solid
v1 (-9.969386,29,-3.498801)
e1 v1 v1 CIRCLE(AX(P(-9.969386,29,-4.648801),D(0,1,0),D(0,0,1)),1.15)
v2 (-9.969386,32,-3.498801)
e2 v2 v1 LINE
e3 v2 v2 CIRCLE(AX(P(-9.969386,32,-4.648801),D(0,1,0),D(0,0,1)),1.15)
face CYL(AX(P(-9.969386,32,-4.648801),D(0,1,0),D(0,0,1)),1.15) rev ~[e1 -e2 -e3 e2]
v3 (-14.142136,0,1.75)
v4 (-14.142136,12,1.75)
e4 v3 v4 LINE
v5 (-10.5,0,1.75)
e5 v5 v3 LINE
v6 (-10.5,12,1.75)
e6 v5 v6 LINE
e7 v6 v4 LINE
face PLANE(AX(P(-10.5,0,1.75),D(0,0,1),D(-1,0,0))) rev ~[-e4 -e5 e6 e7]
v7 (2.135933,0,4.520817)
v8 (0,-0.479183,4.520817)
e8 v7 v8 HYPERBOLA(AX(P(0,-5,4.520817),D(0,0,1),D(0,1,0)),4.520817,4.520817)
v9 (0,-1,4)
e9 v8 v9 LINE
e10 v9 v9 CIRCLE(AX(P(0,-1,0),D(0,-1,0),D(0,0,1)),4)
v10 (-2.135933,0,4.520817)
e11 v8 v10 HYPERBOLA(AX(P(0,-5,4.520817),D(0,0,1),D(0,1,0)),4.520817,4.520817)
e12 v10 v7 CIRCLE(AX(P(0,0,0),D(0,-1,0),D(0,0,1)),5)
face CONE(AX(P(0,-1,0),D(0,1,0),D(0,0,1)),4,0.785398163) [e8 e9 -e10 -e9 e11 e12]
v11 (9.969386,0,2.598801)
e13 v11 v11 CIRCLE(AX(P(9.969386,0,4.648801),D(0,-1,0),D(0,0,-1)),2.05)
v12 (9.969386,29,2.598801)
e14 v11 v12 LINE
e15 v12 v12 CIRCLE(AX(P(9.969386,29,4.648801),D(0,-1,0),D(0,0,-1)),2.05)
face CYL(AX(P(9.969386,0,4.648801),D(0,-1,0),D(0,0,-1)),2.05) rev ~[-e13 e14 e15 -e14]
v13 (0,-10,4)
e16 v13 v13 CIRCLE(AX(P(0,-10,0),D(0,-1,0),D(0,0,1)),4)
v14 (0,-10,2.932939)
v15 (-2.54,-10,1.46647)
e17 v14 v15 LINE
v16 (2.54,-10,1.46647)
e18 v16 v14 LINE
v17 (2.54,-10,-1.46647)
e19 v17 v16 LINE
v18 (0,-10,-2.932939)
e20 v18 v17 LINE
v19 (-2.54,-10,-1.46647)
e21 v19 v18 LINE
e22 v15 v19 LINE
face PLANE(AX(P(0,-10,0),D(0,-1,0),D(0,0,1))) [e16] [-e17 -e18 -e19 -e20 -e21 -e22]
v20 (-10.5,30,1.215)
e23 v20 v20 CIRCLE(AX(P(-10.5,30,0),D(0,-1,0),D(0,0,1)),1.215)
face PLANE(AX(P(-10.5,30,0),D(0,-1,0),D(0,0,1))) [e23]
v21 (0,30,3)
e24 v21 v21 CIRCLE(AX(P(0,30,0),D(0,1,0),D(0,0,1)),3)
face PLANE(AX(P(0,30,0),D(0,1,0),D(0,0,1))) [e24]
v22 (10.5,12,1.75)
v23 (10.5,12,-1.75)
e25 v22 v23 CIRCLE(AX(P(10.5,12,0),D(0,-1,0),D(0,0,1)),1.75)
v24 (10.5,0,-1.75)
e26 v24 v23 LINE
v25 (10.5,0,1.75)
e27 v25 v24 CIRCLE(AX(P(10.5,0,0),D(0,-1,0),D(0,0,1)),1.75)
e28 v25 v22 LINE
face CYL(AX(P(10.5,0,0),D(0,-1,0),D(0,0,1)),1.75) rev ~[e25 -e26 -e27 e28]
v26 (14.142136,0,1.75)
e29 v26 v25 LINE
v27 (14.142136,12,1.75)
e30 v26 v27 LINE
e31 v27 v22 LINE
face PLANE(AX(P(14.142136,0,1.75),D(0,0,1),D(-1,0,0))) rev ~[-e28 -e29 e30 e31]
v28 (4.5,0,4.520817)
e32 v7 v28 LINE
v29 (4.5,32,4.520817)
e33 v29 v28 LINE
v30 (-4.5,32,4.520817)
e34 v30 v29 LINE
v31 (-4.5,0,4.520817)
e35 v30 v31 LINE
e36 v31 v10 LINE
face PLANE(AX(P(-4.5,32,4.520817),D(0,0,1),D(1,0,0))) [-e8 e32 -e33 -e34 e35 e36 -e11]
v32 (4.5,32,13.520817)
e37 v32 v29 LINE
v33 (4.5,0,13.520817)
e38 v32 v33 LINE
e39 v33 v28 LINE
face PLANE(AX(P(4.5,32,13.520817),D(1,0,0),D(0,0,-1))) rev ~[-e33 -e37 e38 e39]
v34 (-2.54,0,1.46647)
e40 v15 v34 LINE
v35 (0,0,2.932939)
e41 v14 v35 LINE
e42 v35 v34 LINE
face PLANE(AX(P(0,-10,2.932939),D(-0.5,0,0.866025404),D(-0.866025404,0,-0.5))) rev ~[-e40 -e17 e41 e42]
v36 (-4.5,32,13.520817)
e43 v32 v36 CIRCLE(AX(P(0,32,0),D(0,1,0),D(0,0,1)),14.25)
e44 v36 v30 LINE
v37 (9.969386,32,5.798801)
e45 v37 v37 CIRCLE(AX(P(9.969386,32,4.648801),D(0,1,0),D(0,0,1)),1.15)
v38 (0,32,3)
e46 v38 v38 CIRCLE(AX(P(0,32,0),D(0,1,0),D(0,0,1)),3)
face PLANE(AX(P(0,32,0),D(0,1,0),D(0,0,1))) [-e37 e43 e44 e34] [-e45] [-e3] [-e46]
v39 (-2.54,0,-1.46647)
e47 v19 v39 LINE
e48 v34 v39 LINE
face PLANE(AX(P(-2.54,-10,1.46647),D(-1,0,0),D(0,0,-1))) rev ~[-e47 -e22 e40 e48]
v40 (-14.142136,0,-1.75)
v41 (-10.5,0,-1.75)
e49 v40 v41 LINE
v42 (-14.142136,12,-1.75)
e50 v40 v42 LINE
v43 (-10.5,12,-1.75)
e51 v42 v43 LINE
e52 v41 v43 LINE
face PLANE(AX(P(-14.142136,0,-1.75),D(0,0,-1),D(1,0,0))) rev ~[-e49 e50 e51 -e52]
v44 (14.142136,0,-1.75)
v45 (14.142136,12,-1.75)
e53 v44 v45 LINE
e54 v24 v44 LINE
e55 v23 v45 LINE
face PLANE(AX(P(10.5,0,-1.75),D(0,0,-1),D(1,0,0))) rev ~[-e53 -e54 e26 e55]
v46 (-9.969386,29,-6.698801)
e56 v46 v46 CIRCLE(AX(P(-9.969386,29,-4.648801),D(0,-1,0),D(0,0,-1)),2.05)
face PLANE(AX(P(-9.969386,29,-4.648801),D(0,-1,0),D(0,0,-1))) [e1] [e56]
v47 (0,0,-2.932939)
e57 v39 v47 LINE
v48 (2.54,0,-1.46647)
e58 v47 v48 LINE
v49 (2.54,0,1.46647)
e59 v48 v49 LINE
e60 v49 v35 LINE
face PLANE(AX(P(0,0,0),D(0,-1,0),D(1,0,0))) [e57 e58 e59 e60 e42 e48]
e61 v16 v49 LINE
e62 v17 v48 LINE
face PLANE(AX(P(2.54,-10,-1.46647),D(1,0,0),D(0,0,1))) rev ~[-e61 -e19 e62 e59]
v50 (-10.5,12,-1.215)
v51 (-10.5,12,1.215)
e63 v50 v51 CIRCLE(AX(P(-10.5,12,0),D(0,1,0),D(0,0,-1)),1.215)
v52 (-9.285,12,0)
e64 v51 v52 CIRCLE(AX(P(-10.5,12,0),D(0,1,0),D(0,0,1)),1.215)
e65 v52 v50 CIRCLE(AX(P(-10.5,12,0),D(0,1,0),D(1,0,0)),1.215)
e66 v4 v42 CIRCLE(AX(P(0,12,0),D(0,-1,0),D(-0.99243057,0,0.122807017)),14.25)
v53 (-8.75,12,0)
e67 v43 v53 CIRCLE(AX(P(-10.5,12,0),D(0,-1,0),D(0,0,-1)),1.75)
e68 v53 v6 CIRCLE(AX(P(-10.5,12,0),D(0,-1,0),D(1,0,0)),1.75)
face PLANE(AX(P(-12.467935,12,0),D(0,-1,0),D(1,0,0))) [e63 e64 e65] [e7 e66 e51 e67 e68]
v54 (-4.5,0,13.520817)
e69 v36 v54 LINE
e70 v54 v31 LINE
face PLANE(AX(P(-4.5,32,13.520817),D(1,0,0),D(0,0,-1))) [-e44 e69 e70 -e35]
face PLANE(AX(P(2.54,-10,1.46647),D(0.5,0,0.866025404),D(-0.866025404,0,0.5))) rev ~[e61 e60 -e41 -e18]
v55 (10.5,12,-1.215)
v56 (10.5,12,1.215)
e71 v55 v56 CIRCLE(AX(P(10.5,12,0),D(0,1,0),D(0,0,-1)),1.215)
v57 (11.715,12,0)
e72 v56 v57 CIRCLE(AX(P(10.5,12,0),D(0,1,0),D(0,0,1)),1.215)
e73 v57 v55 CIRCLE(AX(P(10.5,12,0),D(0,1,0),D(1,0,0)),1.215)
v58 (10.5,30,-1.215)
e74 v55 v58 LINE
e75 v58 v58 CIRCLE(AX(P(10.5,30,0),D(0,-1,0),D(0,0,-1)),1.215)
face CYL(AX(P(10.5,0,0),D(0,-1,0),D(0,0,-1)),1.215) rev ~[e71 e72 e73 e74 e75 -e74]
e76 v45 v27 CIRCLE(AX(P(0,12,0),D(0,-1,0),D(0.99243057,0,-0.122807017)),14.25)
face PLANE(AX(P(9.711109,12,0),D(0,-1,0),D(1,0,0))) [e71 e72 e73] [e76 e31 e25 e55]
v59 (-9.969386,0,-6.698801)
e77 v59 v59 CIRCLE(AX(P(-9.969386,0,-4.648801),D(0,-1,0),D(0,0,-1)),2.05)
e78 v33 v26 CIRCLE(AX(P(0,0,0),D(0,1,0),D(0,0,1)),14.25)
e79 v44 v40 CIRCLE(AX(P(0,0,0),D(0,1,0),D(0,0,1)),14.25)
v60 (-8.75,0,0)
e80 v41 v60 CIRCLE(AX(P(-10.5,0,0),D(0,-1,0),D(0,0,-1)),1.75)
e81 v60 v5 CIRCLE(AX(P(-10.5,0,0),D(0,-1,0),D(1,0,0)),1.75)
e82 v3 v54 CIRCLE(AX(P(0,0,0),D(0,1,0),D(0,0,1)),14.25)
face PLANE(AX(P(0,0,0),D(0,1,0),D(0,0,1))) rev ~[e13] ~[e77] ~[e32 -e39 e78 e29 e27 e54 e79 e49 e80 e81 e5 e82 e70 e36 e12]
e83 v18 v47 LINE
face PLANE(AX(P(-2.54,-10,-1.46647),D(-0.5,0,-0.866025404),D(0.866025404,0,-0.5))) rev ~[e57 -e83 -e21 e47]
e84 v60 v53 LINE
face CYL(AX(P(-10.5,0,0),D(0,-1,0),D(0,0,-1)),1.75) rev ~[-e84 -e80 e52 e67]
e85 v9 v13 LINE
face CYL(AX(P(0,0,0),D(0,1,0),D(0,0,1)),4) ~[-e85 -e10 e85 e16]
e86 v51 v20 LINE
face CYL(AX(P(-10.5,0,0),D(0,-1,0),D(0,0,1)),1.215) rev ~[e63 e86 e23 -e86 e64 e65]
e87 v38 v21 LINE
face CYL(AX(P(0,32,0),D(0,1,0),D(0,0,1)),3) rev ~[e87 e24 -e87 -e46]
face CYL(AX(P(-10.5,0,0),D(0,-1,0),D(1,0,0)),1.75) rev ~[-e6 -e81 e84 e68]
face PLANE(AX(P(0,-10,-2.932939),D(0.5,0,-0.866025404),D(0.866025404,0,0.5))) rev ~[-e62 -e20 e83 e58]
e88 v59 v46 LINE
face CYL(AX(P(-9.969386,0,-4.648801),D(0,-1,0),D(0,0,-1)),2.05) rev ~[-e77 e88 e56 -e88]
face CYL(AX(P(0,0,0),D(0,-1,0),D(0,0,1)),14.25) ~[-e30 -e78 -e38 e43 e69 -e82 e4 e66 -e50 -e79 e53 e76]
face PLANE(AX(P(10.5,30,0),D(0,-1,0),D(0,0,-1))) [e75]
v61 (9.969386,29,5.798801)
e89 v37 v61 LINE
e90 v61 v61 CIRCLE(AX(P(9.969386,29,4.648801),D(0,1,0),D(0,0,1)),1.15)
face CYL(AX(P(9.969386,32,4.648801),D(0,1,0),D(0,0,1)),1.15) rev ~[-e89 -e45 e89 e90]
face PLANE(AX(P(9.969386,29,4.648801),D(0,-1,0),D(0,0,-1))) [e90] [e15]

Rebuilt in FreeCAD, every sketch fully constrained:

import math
import FreeCAD as App
import Part
import Sketcher

V = App.Vector
Q = App.Units.Quantity


def edges_at(feature, points):
    """Names of the edges that pass closest to the given points."""
    edges = feature.Shape.Edges
    near = lambda p: min(range(len(edges)), key=lambda i: edges[i].distToShape(Part.Vertex(*p))[0])
    return sorted({f"Edge{near(p) + 1}" for p in points})


def add_polygon(sketch, points):
    """Adds a closed chain of lines whose ends are joined by coincident constraints."""
    first, n = sketch.GeometryCount, len(points)
    for a, b in zip(points, points[1:] + points[:1]):
        sketch.addGeometry(Part.LineSegment(App.Vector(*a, 0), App.Vector(*b, 0)), False)
    for i in range(n):
        sketch.addConstraint(Sketcher.Constraint("Coincident", first + i, 2, first + (i + 1) % n, 1))

doc = App.newDocument("Part")
body = doc.addObject("PartDesign::Body", "Body")

# Sketch on XZ plane
sketch1 = body.newObject("Sketcher::SketchObject", "Sketch")
sketch1.AttachmentSupport = (doc.getObject("XZ_Plane"), [""])
sketch1.MapMode = "FlatFace"
sketch1.addGeometry(Part.Circle(V(0, 0, 0), V(0, 0, 1), 14.25), False)
sketch1.addConstraint([
    Sketcher.Constraint("Coincident", 0, 3, -1, 1),
    Sketcher.Constraint("Diameter", 0, Q("28.5 mm")),
])
pad1 = body.newObject("PartDesign::Pad", "Pad")
pad1.Profile = sketch1
pad1.Length = 32
pad1.Reversed = True

# Sketch on XZ plane
sketch2 = body.newObject("Sketcher::SketchObject", "Sketch001")
sketch2.AttachmentSupport = (doc.getObject("XZ_Plane"), [""])
sketch2.MapMode = "FlatFace"
sketch2.addGeometry([
    Part.Circle(V(10.5, 0, 0), V(0, 0, 1), 1.215),
    Part.Circle(V(-10.5, 0, 0), V(0, 0, 1), 1.215),
], False)
sketch2.addConstraint([
    Sketcher.Constraint("Equal", 0, 1),
    Sketcher.Constraint("Symmetric", 0, 3, 1, 3, -1, 1),
    Sketcher.Constraint("PointOnObject", 0, 3, -1),
    Sketcher.Constraint("Diameter", 0, Q("2.43 mm")),
    Sketcher.Constraint("DistanceX", 1, 3, 0, 3, Q("21 mm")),
])
pocket1 = body.newObject("PartDesign::Pocket", "Pocket")
pocket1.Profile = sketch2
pocket1.Length = 30

# Sketch on XZ plane
sketch3 = body.newObject("Sketcher::SketchObject", "Sketch002")
sketch3.AttachmentSupport = (doc.getObject("XZ_Plane"), [""])
sketch3.MapMode = "FlatFace"
sketch3.addGeometry(Part.Circle(V(0, 0, 0), V(0, 0, 1), 4), False)
sketch3.addConstraint([
    Sketcher.Constraint("Coincident", 0, 3, -1, 1),
    Sketcher.Constraint("Diameter", 0, Q("8 mm")),
])
pad2 = body.newObject("PartDesign::Pad", "Pad001")
pad2.Profile = sketch3
pad2.Length = 10

# Sketch on XZ plane
sketch4 = body.newObject("Sketcher::SketchObject", "Sketch003")
sketch4.AttachmentSupport = (doc.getObject("XZ_Plane"), [""])
sketch4.MapMode = "FlatFace"
sketch4.AttachmentOffset = App.Placement(V(0, 0, 10), App.Rotation())
add_polygon(sketch4, [(0, -2.932939), (2.54, -1.46647), (2.54, 1.46647), (0, 2.932939), (-2.54, 1.46647), (-2.54, -1.46647)])  # lines 0-5
sketch4.addConstraint([
    Sketcher.Constraint("Vertical", 1),
    Sketcher.Constraint("Vertical", 4),
    Sketcher.Constraint("Symmetric", 0, 2, 3, 2, -1, 1),
    Sketcher.Constraint("Symmetric", 2, 2, 5, 2, -1, 1),
    Sketcher.Constraint("PointOnObject", 2, 2, -2),
    Sketcher.Constraint("Parallel", 2, 5),
    Sketcher.Constraint("Horizontal", 1, 2, 3, 2),
    Sketcher.Constraint("Angle", 0, Q("30 deg")),
    Sketcher.Constraint("DistanceX", -1, 1, 0, 2, Q("2.54 mm")),
    Sketcher.Constraint("DistanceY", 1, 1, 1, 2, Q("2.932939 mm")),
])
pocket2 = body.newObject("PartDesign::Pocket", "Pocket001")
pocket2.Profile = sketch4
pocket2.Length = 10
doc.recompute()

chamfer = body.newObject("PartDesign::Chamfer", "Chamfer")
chamfer.Base = (pocket2, edges_at(pocket2, [(0, 0, -4)]))
chamfer.Size = 1

# Sketch on XZ plane
sketch5 = body.newObject("Sketcher::SketchObject", "Sketch004")
sketch5.AttachmentSupport = (doc.getObject("XZ_Plane"), [""])
sketch5.MapMode = "FlatFace"
sketch5.AttachmentOffset = App.Placement(V(0, 0, -32), App.Rotation())
sketch5.addGeometry([
    Part.LineSegment(V(-4.5, 4.520817, 0), V(-4.5, 13.520817, 0)),
    Part.ArcOfCircle(Part.Circle(V(0, 0, 0), V(0, 0, 1), 14.25), math.radians(71.59152), math.radians(108.40848)),
    Part.LineSegment(V(4.5, 13.520817, 0), V(4.5, 4.520817, 0)),
    Part.LineSegment(V(4.5, 4.520817, 0), V(-4.5, 4.520817, 0)),
], False)
sketch5.addConstraint([
    Sketcher.Constraint("Coincident", 0, 2, 1, 2),
    Sketcher.Constraint("Coincident", 1, 1, 2, 1),
    Sketcher.Constraint("Coincident", 2, 2, 3, 1),
    Sketcher.Constraint("Coincident", 3, 2, 0, 1),
    Sketcher.Constraint("Vertical", 0),
    Sketcher.Constraint("Vertical", 2),
    Sketcher.Constraint("Horizontal", 3),
    Sketcher.Constraint("Coincident", 1, 3, -1, 1),
    Sketcher.Constraint("Horizontal", 0, 2, 1, 1),
    Sketcher.Constraint("Equal", 3, 0),
    Sketcher.Constraint("DistanceX", 3, 2, 3, 1, Q("9 mm")),
    Sketcher.Constraint("Radius", 1, Q("14.25 mm")),
])
pocket3 = body.newObject("PartDesign::Pocket", "Pocket002")
pocket3.Profile = sketch5
pocket3.Type = "ThroughAll"
pocket3.Reversed = True

# Sketch on XZ plane
sketch6 = body.newObject("Sketcher::SketchObject", "Sketch005")
sketch6.AttachmentSupport = (doc.getObject("XZ_Plane"), [""])
sketch6.MapMode = "FlatFace"
sketch6.AttachmentOffset = App.Placement(V(0, 0, -32), App.Rotation())
sketch6.addGeometry([
    Part.Circle(V(-9.969386, -4.648801, 0), V(0, 0, 1), 1.15),
    Part.Circle(V(9.969386, 4.648801, 0), V(0, 0, 1), 1.15),
], False)
sketch6.addConstraint([
    Sketcher.Constraint("Equal", 0, 1),
    Sketcher.Constraint("Symmetric", 0, 3, 1, 3, -1, 1),
    Sketcher.Constraint("Diameter", 0, Q("2.3 mm")),
    Sketcher.Constraint("DistanceY", 0, 3, -1, 1, Q("4.648801 mm")),
    Sketcher.Constraint("DistanceX", 0, 3, 1, 3, Q("19.938771 mm")),
])
pocket4 = body.newObject("PartDesign::Pocket", "Pocket003")
pocket4.Profile = sketch6
pocket4.Type = "ThroughAll"
pocket4.Reversed = True

# Sketch on XZ plane
sketch7 = body.newObject("Sketcher::SketchObject", "Sketch006")
sketch7.AttachmentSupport = (doc.getObject("XZ_Plane"), [""])
sketch7.MapMode = "FlatFace"
sketch7.AttachmentOffset = App.Placement(V(0, 0, -32), App.Rotation())
sketch7.addGeometry(Part.Circle(V(0, 0, 0), V(0, 0, 1), 3), False)
sketch7.addConstraint([
    Sketcher.Constraint("Coincident", 0, 3, -1, 1),
    Sketcher.Constraint("Diameter", 0, Q("6 mm")),
])
pocket5 = body.newObject("PartDesign::Pocket", "Pocket004")
pocket5.Profile = sketch7
pocket5.Length = 2
pocket5.Reversed = True

# Sketch on XZ plane
sketch8 = body.newObject("Sketcher::SketchObject", "Sketch007")
sketch8.AttachmentSupport = (doc.getObject("XZ_Plane"), [""])
sketch8.MapMode = "FlatFace"
sketch8.addGeometry([
    Part.LineSegment(V(-14.142136, -1.75, 0), V(-10.5, -1.75, 0)),  # 0
    Part.ArcOfCircle(Part.Circle(V(-10.5, 0, 0), V(0, 0, 1), 1.75), math.radians(-90), math.radians(0)),  # 1
    Part.ArcOfCircle(Part.Circle(V(-10.5, 0, 0), V(0, 0, 1), 1.75), math.radians(0), math.radians(90)),  # 2
    Part.LineSegment(V(-10.5, 1.75, 0), V(-14.142136, 1.75, 0)),  # 3
    Part.ArcOfCircle(Part.Circle(V(0, 0, 0), V(0, 0, 1), 14.25), math.radians(172.945869), math.radians(187.054131)),  # 4
    Part.ArcOfCircle(Part.Circle(V(-10.5, 0, 0), V(0, 0, 1), 1.215), math.radians(90), math.radians(270)),  # 5
    Part.ArcOfCircle(Part.Circle(V(-10.5, 0, 0), V(0, 0, 1), 1.215), math.radians(0), math.radians(90)),  # 6
    Part.ArcOfCircle(Part.Circle(V(-10.5, 0, 0), V(0, 0, 1), 1.215), math.radians(-90), math.radians(0)),  # 7
    Part.ArcOfCircle(Part.Circle(V(10.5, 0, 0), V(0, 0, 1), 1.75), math.radians(90), math.radians(270)),  # 8
    Part.LineSegment(V(10.5, -1.75, 0), V(14.142136, -1.75, 0)),  # 9
    Part.ArcOfCircle(Part.Circle(V(0, 0, 0), V(0, 0, 1), 14.25), math.radians(-7.054131), math.radians(7.054131)),  # 10
    Part.LineSegment(V(14.142136, 1.75, 0), V(10.5, 1.75, 0)),  # 11
    Part.ArcOfCircle(Part.Circle(V(10.5, 0, 0), V(0, 0, 1), 1.215), math.radians(90), math.radians(270)),  # 12
    Part.ArcOfCircle(Part.Circle(V(10.5, 0, 0), V(0, 0, 1), 1.215), math.radians(0), math.radians(90)),  # 13
    Part.ArcOfCircle(Part.Circle(V(10.5, 0, 0), V(0, 0, 1), 1.215), math.radians(-90), math.radians(0)),  # 14
], False)
sketch8.addConstraint([
    Sketcher.Constraint("Tangent", 0, 2, 1, 1),
    Sketcher.Constraint("Tangent", 1, 2, 2, 1),
    Sketcher.Constraint("Tangent", 2, 2, 3, 1),
    Sketcher.Constraint("Coincident", 3, 2, 4, 1),
    Sketcher.Constraint("Coincident", 4, 2, 0, 1),
    Sketcher.Constraint("Tangent", 5, 1, 6, 2),
    Sketcher.Constraint("Tangent", 6, 1, 7, 2),
    Sketcher.Constraint("Tangent", 7, 1, 5, 2),
    Sketcher.Constraint("Tangent", 8, 2, 9, 1),
    Sketcher.Constraint("Coincident", 9, 2, 10, 1),
    Sketcher.Constraint("Coincident", 10, 2, 11, 1),
    Sketcher.Constraint("Tangent", 11, 2, 8, 1),
    Sketcher.Constraint("Tangent", 12, 1, 13, 2),
    Sketcher.Constraint("Tangent", 13, 1, 14, 2),
    Sketcher.Constraint("Tangent", 14, 1, 12, 2),
    Sketcher.Constraint("Horizontal", 0),
    Sketcher.Constraint("Horizontal", 3),
    Sketcher.Constraint("Horizontal", 9),
    Sketcher.Constraint("Horizontal", 11),
    Sketcher.Constraint("Coincident", 4, 3, -1, 1),
    Sketcher.Constraint("Coincident", 10, 3, -1, 1),
    Sketcher.Constraint("Coincident", 5, 3, 1, 3),
    Sketcher.Constraint("Coincident", 12, 3, 8, 3),
    Sketcher.Constraint("Equal", 1, 2),
    Sketcher.Constraint("Equal", 2, 8),
    Sketcher.Constraint("Equal", 4, 10),
    Sketcher.Constraint("Equal", 7, 12),
    Sketcher.Constraint("Symmetric", 1, 3, 8, 3, -1, 1),
    Sketcher.Constraint("Symmetric", 5, 1, 12, 1, -2),
    Sketcher.Constraint("PointOnObject", 1, 2, -1),
    Sketcher.Constraint("PointOnObject", 6, 1, -1),
    Sketcher.Constraint("PointOnObject", 13, 1, -1),
    Sketcher.Constraint("Vertical", 2, 2, 5, 1),
    Sketcher.Constraint("Vertical", 5, 1, 7, 1),
    Sketcher.Constraint("Vertical", 12, 1, 14, 1),
    Sketcher.Constraint("Radius", 1, Q("1.75 mm")),
    Sketcher.Constraint("Radius", 4, Q("14.25 mm")),
    Sketcher.Constraint("Radius", 5, Q("1.215 mm")),
    Sketcher.Constraint("DistanceX", 1, 3, 8, 3, Q("21 mm")),
])
pocket6 = body.newObject("PartDesign::Pocket", "Pocket005")
pocket6.Profile = sketch8
pocket6.Length = 12

# Sketch on XZ plane
sketch9 = body.newObject("Sketcher::SketchObject", "Sketch008")
sketch9.AttachmentSupport = (doc.getObject("XZ_Plane"), [""])
sketch9.MapMode = "FlatFace"
sketch9.addGeometry([
    Part.Circle(V(-9.969386, -4.648801, 0), V(0, 0, 1), 2.05),
    Part.Circle(V(9.969386, 4.648801, 0), V(0, 0, 1), 2.05),
], False)
sketch9.addConstraint([
    Sketcher.Constraint("Equal", 0, 1),
    Sketcher.Constraint("Symmetric", 0, 3, 1, 3, -1, 1),
    Sketcher.Constraint("Diameter", 0, Q("4.1 mm")),
    Sketcher.Constraint("DistanceY", 0, 3, -1, 1, Q("4.648801 mm")),
    Sketcher.Constraint("DistanceX", 0, 3, 1, 3, Q("19.938771 mm")),
])
pocket7 = body.newObject("PartDesign::Pocket", "Pocket006")
pocket7.Profile = sketch9
pocket7.Length = 29

doc.recompute()
